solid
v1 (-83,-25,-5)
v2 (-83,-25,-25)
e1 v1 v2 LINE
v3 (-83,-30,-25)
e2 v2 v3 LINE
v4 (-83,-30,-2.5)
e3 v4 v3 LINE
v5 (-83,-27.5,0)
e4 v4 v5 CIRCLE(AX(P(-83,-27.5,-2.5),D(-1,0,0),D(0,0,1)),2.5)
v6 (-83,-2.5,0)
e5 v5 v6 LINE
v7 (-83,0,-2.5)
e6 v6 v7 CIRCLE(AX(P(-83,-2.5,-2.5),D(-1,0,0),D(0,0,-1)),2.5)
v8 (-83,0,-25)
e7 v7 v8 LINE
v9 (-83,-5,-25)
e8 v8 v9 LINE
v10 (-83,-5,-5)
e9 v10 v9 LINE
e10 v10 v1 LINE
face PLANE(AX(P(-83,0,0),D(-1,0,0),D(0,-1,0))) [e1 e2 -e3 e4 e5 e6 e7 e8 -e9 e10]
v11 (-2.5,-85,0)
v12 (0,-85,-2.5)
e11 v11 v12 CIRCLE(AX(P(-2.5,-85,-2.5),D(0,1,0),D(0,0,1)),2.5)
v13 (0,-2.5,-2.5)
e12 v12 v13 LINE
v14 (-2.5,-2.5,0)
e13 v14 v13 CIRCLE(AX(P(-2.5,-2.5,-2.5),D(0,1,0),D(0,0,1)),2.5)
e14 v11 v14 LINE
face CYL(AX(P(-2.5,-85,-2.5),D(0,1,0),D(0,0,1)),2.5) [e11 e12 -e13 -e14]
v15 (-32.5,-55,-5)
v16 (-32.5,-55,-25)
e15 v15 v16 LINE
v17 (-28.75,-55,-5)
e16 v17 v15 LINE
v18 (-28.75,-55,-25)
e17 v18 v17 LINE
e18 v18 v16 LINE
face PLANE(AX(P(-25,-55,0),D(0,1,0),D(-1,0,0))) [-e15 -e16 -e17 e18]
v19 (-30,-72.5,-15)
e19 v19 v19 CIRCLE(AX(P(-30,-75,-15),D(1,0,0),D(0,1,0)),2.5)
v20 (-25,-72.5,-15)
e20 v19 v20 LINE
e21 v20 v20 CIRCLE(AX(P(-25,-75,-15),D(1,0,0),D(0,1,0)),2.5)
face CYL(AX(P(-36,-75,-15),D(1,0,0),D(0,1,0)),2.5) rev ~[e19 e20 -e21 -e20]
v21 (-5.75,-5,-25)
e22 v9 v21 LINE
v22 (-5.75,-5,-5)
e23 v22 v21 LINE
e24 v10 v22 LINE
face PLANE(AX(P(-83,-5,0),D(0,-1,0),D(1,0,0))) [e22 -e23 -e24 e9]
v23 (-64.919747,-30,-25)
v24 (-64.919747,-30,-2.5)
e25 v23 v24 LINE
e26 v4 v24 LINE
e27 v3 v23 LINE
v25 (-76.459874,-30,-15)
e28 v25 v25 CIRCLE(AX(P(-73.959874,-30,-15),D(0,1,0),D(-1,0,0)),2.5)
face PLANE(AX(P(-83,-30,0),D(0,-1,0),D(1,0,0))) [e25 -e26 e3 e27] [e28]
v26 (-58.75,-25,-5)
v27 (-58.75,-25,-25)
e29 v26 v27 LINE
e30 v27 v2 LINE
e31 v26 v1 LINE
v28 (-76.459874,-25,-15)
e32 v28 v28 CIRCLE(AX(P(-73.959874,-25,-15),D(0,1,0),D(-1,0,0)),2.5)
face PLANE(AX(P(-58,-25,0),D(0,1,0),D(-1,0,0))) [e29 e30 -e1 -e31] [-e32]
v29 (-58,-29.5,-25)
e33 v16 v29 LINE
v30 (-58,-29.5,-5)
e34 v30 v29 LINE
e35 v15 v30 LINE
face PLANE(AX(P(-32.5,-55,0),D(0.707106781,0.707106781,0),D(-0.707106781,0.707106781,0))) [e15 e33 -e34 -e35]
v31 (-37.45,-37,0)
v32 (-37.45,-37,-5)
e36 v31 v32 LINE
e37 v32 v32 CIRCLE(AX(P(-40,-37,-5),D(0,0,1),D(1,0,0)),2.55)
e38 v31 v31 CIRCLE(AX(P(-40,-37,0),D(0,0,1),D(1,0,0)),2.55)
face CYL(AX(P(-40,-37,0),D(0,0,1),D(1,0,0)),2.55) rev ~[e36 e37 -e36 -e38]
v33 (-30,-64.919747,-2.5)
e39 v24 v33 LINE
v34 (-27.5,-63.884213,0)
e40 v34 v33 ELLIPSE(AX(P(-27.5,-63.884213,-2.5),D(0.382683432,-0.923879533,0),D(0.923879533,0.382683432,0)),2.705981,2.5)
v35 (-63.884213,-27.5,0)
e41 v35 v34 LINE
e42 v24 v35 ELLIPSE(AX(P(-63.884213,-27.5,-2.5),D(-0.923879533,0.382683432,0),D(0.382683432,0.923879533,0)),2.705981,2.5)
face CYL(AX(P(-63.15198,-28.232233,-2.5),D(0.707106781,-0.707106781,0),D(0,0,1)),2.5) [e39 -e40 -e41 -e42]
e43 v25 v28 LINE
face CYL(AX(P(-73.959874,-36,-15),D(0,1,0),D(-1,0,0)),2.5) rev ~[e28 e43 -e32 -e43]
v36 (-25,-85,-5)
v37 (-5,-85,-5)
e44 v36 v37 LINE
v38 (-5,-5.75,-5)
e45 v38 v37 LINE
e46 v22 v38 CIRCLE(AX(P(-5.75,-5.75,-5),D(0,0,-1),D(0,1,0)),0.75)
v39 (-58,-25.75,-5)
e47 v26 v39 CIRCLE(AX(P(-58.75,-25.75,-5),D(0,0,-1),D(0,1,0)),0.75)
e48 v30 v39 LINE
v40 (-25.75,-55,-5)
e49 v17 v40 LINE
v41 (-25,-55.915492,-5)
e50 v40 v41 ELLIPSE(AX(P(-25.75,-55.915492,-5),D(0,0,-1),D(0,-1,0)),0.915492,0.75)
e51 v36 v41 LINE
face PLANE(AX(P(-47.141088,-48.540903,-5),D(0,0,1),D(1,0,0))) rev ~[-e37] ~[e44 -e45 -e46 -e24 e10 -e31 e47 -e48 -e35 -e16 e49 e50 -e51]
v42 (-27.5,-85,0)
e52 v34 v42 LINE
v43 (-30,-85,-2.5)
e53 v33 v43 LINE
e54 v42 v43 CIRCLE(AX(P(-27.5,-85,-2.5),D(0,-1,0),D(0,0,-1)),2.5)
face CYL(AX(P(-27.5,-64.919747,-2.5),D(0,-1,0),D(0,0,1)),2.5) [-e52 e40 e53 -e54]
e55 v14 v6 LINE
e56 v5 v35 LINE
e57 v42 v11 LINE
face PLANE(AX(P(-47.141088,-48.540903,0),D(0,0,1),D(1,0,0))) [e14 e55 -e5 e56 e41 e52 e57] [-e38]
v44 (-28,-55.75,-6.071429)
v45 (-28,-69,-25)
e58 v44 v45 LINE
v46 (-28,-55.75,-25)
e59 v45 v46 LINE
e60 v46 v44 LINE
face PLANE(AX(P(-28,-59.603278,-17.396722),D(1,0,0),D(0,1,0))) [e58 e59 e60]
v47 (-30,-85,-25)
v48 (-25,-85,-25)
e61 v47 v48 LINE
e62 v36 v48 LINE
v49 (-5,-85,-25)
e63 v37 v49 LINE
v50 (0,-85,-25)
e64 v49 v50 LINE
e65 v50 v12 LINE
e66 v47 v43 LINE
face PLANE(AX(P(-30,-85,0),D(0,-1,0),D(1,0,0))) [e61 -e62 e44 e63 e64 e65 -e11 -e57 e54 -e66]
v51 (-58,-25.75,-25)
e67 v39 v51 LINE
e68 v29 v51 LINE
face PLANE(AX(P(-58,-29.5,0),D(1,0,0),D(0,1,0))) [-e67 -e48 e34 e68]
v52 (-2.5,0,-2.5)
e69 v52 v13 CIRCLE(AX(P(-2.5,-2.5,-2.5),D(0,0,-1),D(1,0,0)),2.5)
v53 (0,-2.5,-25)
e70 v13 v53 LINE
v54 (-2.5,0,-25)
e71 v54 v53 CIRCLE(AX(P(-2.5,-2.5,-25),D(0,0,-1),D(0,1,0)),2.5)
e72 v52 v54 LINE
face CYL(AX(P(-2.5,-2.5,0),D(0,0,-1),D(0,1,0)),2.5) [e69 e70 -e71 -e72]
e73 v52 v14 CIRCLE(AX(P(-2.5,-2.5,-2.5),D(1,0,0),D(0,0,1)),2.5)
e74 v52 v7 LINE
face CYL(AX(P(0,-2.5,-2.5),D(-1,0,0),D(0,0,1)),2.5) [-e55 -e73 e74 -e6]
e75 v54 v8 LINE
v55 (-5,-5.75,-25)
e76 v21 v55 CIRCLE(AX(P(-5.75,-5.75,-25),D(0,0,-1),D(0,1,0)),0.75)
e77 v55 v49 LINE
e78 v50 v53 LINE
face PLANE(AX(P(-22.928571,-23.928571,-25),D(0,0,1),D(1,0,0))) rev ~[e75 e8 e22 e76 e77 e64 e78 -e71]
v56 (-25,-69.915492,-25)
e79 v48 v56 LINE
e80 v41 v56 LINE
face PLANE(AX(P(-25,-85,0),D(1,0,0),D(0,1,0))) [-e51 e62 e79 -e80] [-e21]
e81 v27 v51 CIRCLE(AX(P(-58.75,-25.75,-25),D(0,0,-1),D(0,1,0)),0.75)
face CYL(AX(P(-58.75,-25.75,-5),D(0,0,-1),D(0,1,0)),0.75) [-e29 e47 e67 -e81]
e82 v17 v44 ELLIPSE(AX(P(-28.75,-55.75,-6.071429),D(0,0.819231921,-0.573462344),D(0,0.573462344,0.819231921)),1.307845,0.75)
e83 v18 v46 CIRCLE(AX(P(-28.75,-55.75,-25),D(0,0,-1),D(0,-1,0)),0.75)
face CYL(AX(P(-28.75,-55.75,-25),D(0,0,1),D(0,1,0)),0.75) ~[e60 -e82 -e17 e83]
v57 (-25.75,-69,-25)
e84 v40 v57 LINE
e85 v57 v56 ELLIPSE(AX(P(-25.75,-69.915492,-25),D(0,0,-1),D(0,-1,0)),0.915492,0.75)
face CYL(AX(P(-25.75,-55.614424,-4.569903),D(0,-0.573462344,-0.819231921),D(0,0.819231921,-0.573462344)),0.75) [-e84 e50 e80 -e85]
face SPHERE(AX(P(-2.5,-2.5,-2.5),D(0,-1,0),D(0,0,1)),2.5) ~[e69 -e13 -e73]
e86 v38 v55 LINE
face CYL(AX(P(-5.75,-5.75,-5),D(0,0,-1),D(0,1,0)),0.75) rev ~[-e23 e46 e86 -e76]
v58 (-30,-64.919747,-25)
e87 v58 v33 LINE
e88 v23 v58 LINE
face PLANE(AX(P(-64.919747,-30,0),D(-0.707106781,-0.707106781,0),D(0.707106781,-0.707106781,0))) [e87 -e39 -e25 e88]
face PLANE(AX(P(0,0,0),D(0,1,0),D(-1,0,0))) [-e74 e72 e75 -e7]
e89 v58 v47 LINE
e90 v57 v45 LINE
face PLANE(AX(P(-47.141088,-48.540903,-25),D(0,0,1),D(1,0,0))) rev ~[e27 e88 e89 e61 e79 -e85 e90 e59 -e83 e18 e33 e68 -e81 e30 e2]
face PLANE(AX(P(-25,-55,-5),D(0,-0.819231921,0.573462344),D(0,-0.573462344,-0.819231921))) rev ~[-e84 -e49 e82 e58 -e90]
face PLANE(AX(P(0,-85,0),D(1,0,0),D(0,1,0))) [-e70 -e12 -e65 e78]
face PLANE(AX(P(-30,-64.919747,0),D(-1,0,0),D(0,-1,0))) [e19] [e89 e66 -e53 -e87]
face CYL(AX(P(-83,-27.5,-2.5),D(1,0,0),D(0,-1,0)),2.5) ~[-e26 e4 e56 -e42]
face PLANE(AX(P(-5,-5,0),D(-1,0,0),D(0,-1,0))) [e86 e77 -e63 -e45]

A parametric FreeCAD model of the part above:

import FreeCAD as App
import Part
import Sketcher
from FreeCAD import Vector
Q = App.Units.Quantity


def edges_at(feature, points):
    """Names of the edges that pass closest to the given points."""
    edges = feature.Shape.Edges
    near = lambda p: min(range(len(edges)), key=lambda i: edges[i].distToShape(Part.Vertex(*p))[0])
    return sorted({f"Edge{near(p) + 1}" for p in points})


def add_polygon(sketch, points):
    """Adds a closed chain of lines whose ends are joined by coincident constraints."""
    first, n = sketch.GeometryCount, len(points)
    for a, b in zip(points, points[1:] + points[:1]):
        sketch.addGeometry(Part.LineSegment(App.Vector(*a, 0), App.Vector(*b, 0)), False)
    for i in range(n):
        sketch.addConstraint(Sketcher.Constraint("Coincident", first + i, 2, first + (i + 1) % n, 1))

doc = App.newDocument("Part")
body = doc.addObject("PartDesign::Body", "Body")

sketch1 = body.newObject("Sketcher::SketchObject", "Sketch")
sketch1.AttachmentSupport = (doc.getObject("XY_Plane"), [""])
sketch1.MapMode = "FlatFace"
add_polygon(sketch1, [(-83, -30), (-64.9, -30), (-30, -64.9), (-30, -85), (0, -85), (0, 0), (-83, 0)])
sketch1.addGeometry(Part.Circle(Vector(-40, -37, 0), Vector(0, 0, 1), 2.5), False)
sketch1.addConstraint([
    Sketcher.Constraint("Horizontal", 0),
    Sketcher.Constraint("Vertical", 2),
    Sketcher.Constraint("Horizontal", 3),
    Sketcher.Constraint("Vertical", 4),
    Sketcher.Constraint("Horizontal", 5),
    Sketcher.Constraint("Vertical", 6),
    Sketcher.Constraint("Coincident", 4, 2, -1, 1),
    Sketcher.Constraint("Equal", 3, 6),
    Sketcher.Constraint("Diameter", 7, 5.1),
    Sketcher.Constraint("DistanceX", 3, 1, 3, 2, 30.0),
    Sketcher.Constraint("DistanceX", 5, 2, 5, 1, 83.0),
    Sketcher.Constraint("DistanceY", 4, 1, 4, 2, 85.0),
    Sketcher.Constraint("Angle", 1, Q("-45 deg")),
    Sketcher.Constraint("DistanceX", 7, 3, -1, 1, 40.0),
    Sketcher.Constraint("DistanceY", 7, 3, -1, 1, 37.0),
    Sketcher.Constraint("Distance", 1, 49.38398),
])
pad1 = body.newObject("PartDesign::Pad", "Pad")
pad1.Profile = sketch1
pad1.Length = 5
pad1.Reversed = True

sketch2 = body.newObject("Sketcher::SketchObject", "Sketch001")
sketch2.AttachmentSupport = (doc.getObject("XY_Plane"), [""])
sketch2.MapMode = "FlatFace"
add_polygon(sketch2, [(-58, -25), (-83, -25), (-83, -30), (-64.9, -30), (-30, -64.9), (-30, -85), (-25, -85), (-25, -55), (-32.5, -55), (-58, -29.5)])
add_polygon(sketch2, [(0, 0), (-83, 0), (-83, -5), (-5, -5), (-5, -85), (0, -85)])
sketch2.addConstraint([
    Sketcher.Constraint("Horizontal", 0),
    Sketcher.Constraint("Vertical", 1),
    Sketcher.Constraint("Horizontal", 2),
    Sketcher.Constraint("Vertical", 4),
    Sketcher.Constraint("Horizontal", 5),
    Sketcher.Constraint("Vertical", 6),
    Sketcher.Constraint("Horizontal", 7),
    Sketcher.Constraint("Vertical", 9),
    Sketcher.Constraint("Horizontal", 10),
    Sketcher.Constraint("Vertical", 11),
    Sketcher.Constraint("Horizontal", 12),
    Sketcher.Constraint("Vertical", 13),
    Sketcher.Constraint("Horizontal", 14),
    Sketcher.Constraint("Vertical", 15),
    Sketcher.Constraint("Coincident", 15, 2, -1, 1),
    Sketcher.Constraint("Parallel", 3, 8),
    Sketcher.Constraint("Horizontal", 5, 2, 13, 2),
    Sketcher.Constraint("Vertical", 1, 2, 10, 2),
    Sketcher.Constraint("Equal", 5, 14),
    Sketcher.Constraint("Equal", 14, 1),
    Sketcher.Constraint("Equal", 1, 11),
    Sketcher.Constraint("DistanceX", 0, 2, 0, 1, 25.0),
    Sketcher.Constraint("DistanceX", 5, 1, 5, 2, 5.0),
    Sketcher.Constraint("DistanceX", 10, 2, 10, 1, 83.0),
    Sketcher.Constraint("DistanceY", 6, 1, 6, 2, 30.0),
    Sketcher.Constraint("DistanceY", 13, 2, 13, 1, 80.0),
    Sketcher.Constraint("Angle", 3, Q("-45 deg")),
    Sketcher.Constraint("DistanceX", 7, 2, 7, 1, 7.5),
    Sketcher.Constraint("DistanceY", 9, 1, 9, 2, 4.5),
    Sketcher.Constraint("DistanceY", 0, 2, -1, 1, 25.0),
    Sketcher.Constraint("Distance", 3, 49.38398),
])
pad2 = body.newObject("PartDesign::Pad", "Pad001")
pad2.Profile = sketch2
pad2.Length = 25
pad2.Reversed = True
doc.recompute()

fillet = body.newObject("PartDesign::Fillet", "Fillet")
fillet.Base = (pad2, edges_at(pad2, [
    (-73.96, -30, 0),
    (-47.46, -47.46, 0),
    (-30, -74.96, 0),
    (0, -42.5, 0),
    (-41.5, 0, 0),
    (0, 0, -12.5),
]))
fillet.Radius = 2.5

sketch3 = body.newObject("Sketcher::SketchObject", "Sketch002")
sketch3.AttachmentSupport = (doc.getObject("YZ_Plane"), [""])
sketch3.MapMode = "FlatFace"
sketch3.AttachmentOffset = App.Placement(Vector(0, 0, -25), App.Rotation())
add_polygon(sketch3, [(-55, -25), (-55, -5), (-69, -25)])
sketch3.addConstraint([
    Sketcher.Constraint("Vertical", 0),
    Sketcher.Constraint("Horizontal", 2),
    Sketcher.Constraint("DistanceX", 2, 1, 2, 2, 14.0),
    Sketcher.Constraint("DistanceY", 0, 1, 0, 2, 20.0),
    Sketcher.Constraint("DistanceX", 0, 2, -1, 1, 55.0),
    Sketcher.Constraint("DistanceY", 0, 2, -1, 1, 5.0),
])
pocket1 = body.newObject("PartDesign::Pocket", "Pocket")
pocket1.Profile = sketch3
pocket1.Length = 3
doc.recompute()

fillet2 = body.newObject("PartDesign::Fillet", "Fillet001")
fillet2.Base = (pocket1, edges_at(pocket1, [
    (-58, -25, -15),
    (-28, -55, -15),
    (-25, -62, -15),
    (-5, -5, -15),
]))
fillet2.Radius = 0.75

sketch4 = body.newObject("Sketcher::SketchObject", "Sketch003")
sketch4.AttachmentSupport = (doc.getObject("YZ_Plane"), [""])
sketch4.MapMode = "FlatFace"
sketch4.AttachmentOffset = App.Placement(Vector(0, 0, -30), App.Rotation())
sketch4.addGeometry(Part.Circle(Vector(-75, -15, 0), Vector(0, 0, 1), 2.5), False)
sketch4.addConstraint([
    Sketcher.Constraint("Diameter", 0, 5.0),
    Sketcher.Constraint("DistanceX", 0, 3, -1, 1, 75.0),
    Sketcher.Constraint("DistanceY", 0, 3, -1, 1, 15.0),
])
doc.recompute()
hole = body.newObject("PartDesign::Hole", "Hole")
hole.Profile = sketch4
hole.ThreadType = "None"
hole.Diameter = 5
hole.DepthType = "Dimension"
hole.Depth = 6
hole.DrillPoint = "Flat"
hole.Reversed = True

sketch5 = body.newObject("Sketcher::SketchObject", "Sketch004")
sketch5.AttachmentSupport = (doc.getObject("XZ_Plane"), [""])
sketch5.MapMode = "FlatFace"
sketch5.AttachmentOffset = App.Placement(Vector(0, 0, 30), App.Rotation())
sketch5.addGeometry(Part.Circle(Vector(-74, -15, 0), Vector(0, 0, 1), 2.5), False)
sketch5.addConstraint([
    Sketcher.Constraint("Diameter", 0, 5.0),
    Sketcher.Constraint("DistanceY", 0, 3, -1, 1, 15.0),
    Sketcher.Constraint("DistanceX", 0, 3, -1, 1, 73.959874),
])
doc.recompute()
hole2 = body.newObject("PartDesign::Hole", "Hole001")
hole2.Profile = sketch5
hole2.ThreadType = "None"
hole2.Diameter = 5
hole2.DepthType = "Dimension"
hole2.Depth = 6
hole2.DrillPoint = "Flat"

doc.recompute()
